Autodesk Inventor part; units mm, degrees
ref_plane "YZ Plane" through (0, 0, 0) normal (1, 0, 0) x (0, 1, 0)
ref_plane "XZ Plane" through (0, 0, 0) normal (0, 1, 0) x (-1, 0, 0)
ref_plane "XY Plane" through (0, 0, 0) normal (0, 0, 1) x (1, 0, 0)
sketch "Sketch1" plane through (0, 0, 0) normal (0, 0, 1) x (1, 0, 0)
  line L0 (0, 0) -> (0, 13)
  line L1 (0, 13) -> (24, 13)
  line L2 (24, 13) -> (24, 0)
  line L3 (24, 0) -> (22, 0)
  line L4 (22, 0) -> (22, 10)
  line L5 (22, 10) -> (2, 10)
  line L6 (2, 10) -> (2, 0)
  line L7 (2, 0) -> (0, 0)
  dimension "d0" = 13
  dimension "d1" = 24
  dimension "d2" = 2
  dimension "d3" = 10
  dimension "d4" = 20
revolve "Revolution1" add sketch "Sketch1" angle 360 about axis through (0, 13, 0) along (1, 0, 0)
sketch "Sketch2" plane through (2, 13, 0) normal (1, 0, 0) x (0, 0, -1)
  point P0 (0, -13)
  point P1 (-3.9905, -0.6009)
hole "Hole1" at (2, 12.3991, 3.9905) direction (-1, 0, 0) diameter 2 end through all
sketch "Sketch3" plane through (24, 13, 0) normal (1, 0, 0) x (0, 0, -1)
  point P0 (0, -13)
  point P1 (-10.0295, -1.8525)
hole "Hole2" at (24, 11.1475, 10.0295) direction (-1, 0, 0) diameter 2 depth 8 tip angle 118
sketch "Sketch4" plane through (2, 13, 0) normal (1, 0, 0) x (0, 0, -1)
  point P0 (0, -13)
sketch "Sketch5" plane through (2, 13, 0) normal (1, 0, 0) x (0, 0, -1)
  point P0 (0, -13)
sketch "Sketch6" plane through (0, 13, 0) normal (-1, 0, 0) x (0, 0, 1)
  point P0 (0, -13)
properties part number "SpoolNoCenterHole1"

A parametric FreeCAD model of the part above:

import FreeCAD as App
import Part
import Sketcher
Q = App.Units.Quantity

doc = App.newDocument("Part")
body = doc.addObject("PartDesign::Body", "Body")

# Sketch on XY plane
sketch1 = body.newObject("Sketcher::SketchObject", "Sketch")
sketch1.AttachmentSupport = (doc.getObject("XY_Plane"), [""])
sketch1.MapMode = "FlatFace"
sketch1.addGeometry(Part.LineSegment(App.Vector(0, 13, 0), App.Vector(0, 0, 0)), False)
sketch1.addGeometry(Part.LineSegment(App.Vector(0, 0, 0), App.Vector(2, 0, 0)), False)
sketch1.addGeometry(Part.LineSegment(App.Vector(2, 0, 0), App.Vector(2, 10, 0)), False)
sketch1.addGeometry(Part.LineSegment(App.Vector(2, 10, 0), App.Vector(22, 10, 0)), False)
sketch1.addGeometry(Part.LineSegment(App.Vector(22, 10, 0), App.Vector(22, 0, 0)), False)
sketch1.addGeometry(Part.LineSegment(App.Vector(22, 0, 0), App.Vector(24, 0, 0)), False)
sketch1.addGeometry(Part.LineSegment(App.Vector(24, 0, 0), App.Vector(24, 13, 0)), False)
sketch1.addGeometry(Part.LineSegment(App.Vector(24, 13, 0), App.Vector(0, 13, 0)), False)
sketch1.addGeometry(Part.LineSegment(App.Vector(0, 13, 0), App.Vector(24, 13, 0)), True)  # axis
sketch1.addConstraint(Sketcher.Constraint("Coincident", 0, 2, 1, 1))
sketch1.addConstraint(Sketcher.Constraint("Coincident", 1, 2, 2, 1))
sketch1.addConstraint(Sketcher.Constraint("Coincident", 2, 2, 3, 1))
sketch1.addConstraint(Sketcher.Constraint("Coincident", 3, 2, 4, 1))
sketch1.addConstraint(Sketcher.Constraint("Coincident", 4, 2, 5, 1))
sketch1.addConstraint(Sketcher.Constraint("Coincident", 5, 2, 6, 1))
sketch1.addConstraint(Sketcher.Constraint("Coincident", 6, 2, 7, 1))
sketch1.addConstraint(Sketcher.Constraint("Coincident", 7, 2, 0, 1))
sketch1.addConstraint(Sketcher.Constraint("Vertical", 0))
sketch1.addConstraint(Sketcher.Constraint("Horizontal", 1))
sketch1.addConstraint(Sketcher.Constraint("Vertical", 2))
sketch1.addConstraint(Sketcher.Constraint("Horizontal", 3))
sketch1.addConstraint(Sketcher.Constraint("Vertical", 4))
sketch1.addConstraint(Sketcher.Constraint("Horizontal", 5))
sketch1.addConstraint(Sketcher.Constraint("Vertical", 6))
sketch1.addConstraint(Sketcher.Constraint("Horizontal", 7))
sketch1.addConstraint(Sketcher.Constraint("Horizontal", 8))
sketch1.addConstraint(Sketcher.Constraint("Coincident", 0, 2, -1, 1))
sketch1.addConstraint(Sketcher.Constraint("Coincident", 8, 1, 7, 2))
sketch1.addConstraint(Sketcher.Constraint("PointOnObject", 4, 2, -1))
sketch1.addConstraint(Sketcher.Constraint("Vertical", 5, 2, 8, 2))
sketch1.addConstraint(Sketcher.Constraint("Equal", 1, 5))
sketch1.addConstraint(Sketcher.Constraint("DistanceX", 1, 1, 1, 2, Q("2 mm")))
sketch1.addConstraint(Sketcher.Constraint("DistanceX", 3, 1, 3, 2, Q("20 mm")))
sketch1.addConstraint(Sketcher.Constraint("DistanceY", 0, 2, 0, 1, Q("13 mm")))
sketch1.addConstraint(Sketcher.Constraint("DistanceY", 2, 1, 2, 2, Q("10 mm")))
revolution = body.newObject("PartDesign::Revolution", "Revolution")
revolution.Profile = sketch1
revolution.ReferenceAxis = (sketch1, ["Axis0"])
revolution.Angle = 360

# Sketch on YZ plane
sketch2 = body.newObject("Sketcher::SketchObject", "Sketch001")
sketch2.AttachmentSupport = (doc.getObject("YZ_Plane"), [""])
sketch2.MapMode = "FlatFace"
sketch2.AttachmentOffset = App.Placement(App.Vector(0, 0, 2), App.Rotation())
sketch2.addGeometry(Part.Circle(App.Vector(12.3991, 3.9905, 0), App.Vector(0, 0, 1), 1), False)
sketch2.addConstraint(Sketcher.Constraint("Diameter", 0, Q("2 mm")))
sketch2.addConstraint(Sketcher.Constraint("DistanceX", -1, 1, 0, 3, Q("12.399 mm")))
sketch2.addConstraint(Sketcher.Constraint("DistanceY", -1, 1, 0, 3, Q("3.9905 mm")))
doc.recompute()
hole = body.newObject("PartDesign::Hole", "Hole")
hole.Profile = sketch2
hole.ThreadType = "None"
hole.Diameter = 2
hole.DepthType = "ThroughAll"

# Sketch on YZ plane
sketch3 = body.newObject("Sketcher::SketchObject", "Sketch002")
sketch3.AttachmentSupport = (doc.getObject("YZ_Plane"), [""])
sketch3.MapMode = "FlatFace"
sketch3.AttachmentOffset = App.Placement(App.Vector(0, 0, 24), App.Rotation())
sketch3.addGeometry(Part.Circle(App.Vector(11.1475, 10.0295, 0), App.Vector(0, 0, 1), 1), False)
sketch3.addConstraint(Sketcher.Constraint("Diameter", 0, Q("2 mm")))
sketch3.addConstraint(Sketcher.Constraint("DistanceX", -1, 1, 0, 3, Q("11.1475 mm")))
sketch3.addConstraint(Sketcher.Constraint("DistanceY", -1, 1, 0, 3, Q("10.0295 mm")))
doc.recompute()
hole2 = body.newObject("PartDesign::Hole", "Hole001")
hole2.Profile = sketch3
hole2.ThreadType = "None"
hole2.Diameter = 2
hole2.DepthType = "Dimension"
hole2.Depth = 8
hole2.DrillPoint = "Angled"
hole2.DrillPointAngle = 118

doc.recompute()
